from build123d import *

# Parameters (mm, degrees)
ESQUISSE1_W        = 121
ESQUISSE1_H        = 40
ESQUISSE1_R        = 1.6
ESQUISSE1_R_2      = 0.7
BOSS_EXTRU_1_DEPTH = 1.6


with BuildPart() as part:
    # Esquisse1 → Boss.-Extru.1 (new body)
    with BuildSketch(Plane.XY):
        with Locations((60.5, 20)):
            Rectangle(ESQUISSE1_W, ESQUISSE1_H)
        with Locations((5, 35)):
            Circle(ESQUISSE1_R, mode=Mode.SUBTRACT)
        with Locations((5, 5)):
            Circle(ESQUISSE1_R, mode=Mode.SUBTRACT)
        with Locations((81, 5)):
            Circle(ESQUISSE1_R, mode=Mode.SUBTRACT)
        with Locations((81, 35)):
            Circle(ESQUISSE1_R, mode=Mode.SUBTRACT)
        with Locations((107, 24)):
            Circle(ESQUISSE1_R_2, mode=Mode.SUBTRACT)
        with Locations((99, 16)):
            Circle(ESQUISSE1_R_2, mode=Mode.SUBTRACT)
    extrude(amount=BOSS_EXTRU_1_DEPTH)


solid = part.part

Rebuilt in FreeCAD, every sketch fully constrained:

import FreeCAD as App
import Part
import Sketcher

doc = App.newDocument("Part")
body = doc.addObject("PartDesign::Body", "Body")

# Sketch on XY plane
sketch1 = body.newObject("Sketcher::SketchObject", "Sketch")
sketch1.AttachmentSupport = (doc.getObject("XY_Plane"), [""])
sketch1.MapMode = "FlatFace"
sketch1.addGeometry([
    Part.LineSegment(App.Vector(0, 40, 0), App.Vector(0, 0, 0)),  # 0
    Part.LineSegment(App.Vector(0, 0, 0), App.Vector(121, 0, 0)),  # 1
    Part.LineSegment(App.Vector(121, 0, 0), App.Vector(121, 40, 0)),  # 2
    Part.LineSegment(App.Vector(121, 40, 0), App.Vector(0, 40, 0)),  # 3
    Part.Circle(App.Vector(5, 5, 0), App.Vector(0, 0, 1), 1.6),  # 4
    Part.Circle(App.Vector(81, 5, 0), App.Vector(0, 0, 1), 1.6),  # 5
    Part.Circle(App.Vector(99, 16, 0), App.Vector(0, 0, 1), 0.7),  # 6
    Part.Circle(App.Vector(5, 35, 0), App.Vector(0, 0, 1), 1.6),  # 7
    Part.Circle(App.Vector(107, 24, 0), App.Vector(0, 0, 1), 0.7),  # 8
    Part.Circle(App.Vector(81, 35, 0), App.Vector(0, 0, 1), 1.6),  # 9
], False)
sketch1.addConstraint([
    Sketcher.Constraint("Coincident", 0, 2, 1, 1),
    Sketcher.Constraint("Coincident", 1, 2, 2, 1),
    Sketcher.Constraint("Coincident", 2, 2, 3, 1),
    Sketcher.Constraint("Coincident", 3, 2, 0, 1),
    Sketcher.Constraint("Vertical", 0),
    Sketcher.Constraint("Horizontal", 1),
    Sketcher.Constraint("Vertical", 2),
    Sketcher.Constraint("Horizontal", 3),
    Sketcher.Constraint("Coincident", 0, 2, -1, 1),
    Sketcher.Constraint("Equal", 4, 5),
    Sketcher.Constraint("Equal", 5, 7),
    Sketcher.Constraint("Equal", 6, 8),
    Sketcher.Constraint("Equal", 7, 9),
    Sketcher.Constraint("Horizontal", 4, 3, 5, 3),
    Sketcher.Constraint("Horizontal", 7, 3, 9, 3),
    Sketcher.Constraint("Vertical", 4, 3, 7, 3),
    Sketcher.Constraint("Vertical", 5, 3, 9, 3),
    Sketcher.Constraint("Diameter", 4, 3.2),
    Sketcher.Constraint("Diameter", 6, 1.4),
    Sketcher.Constraint("DistanceX", 1, 1, 1, 2, 121.0),
    Sketcher.Constraint("DistanceY", 0, 2, 0, 1, 40.0),
    Sketcher.Constraint("DistanceX", -1, 1, 4, 3, 5.0),
    Sketcher.Constraint("DistanceY", -1, 1, 4, 3, 5.0),
    Sketcher.Constraint("DistanceX", -1, 1, 5, 3, 81.0),
    Sketcher.Constraint("DistanceX", -1, 1, 6, 3, 99.0),
    Sketcher.Constraint("DistanceY", -1, 1, 6, 3, 16.0),
    Sketcher.Constraint("DistanceY", -1, 1, 7, 3, 35.0),
    Sketcher.Constraint("DistanceX", -1, 1, 8, 3, 107.0),
    Sketcher.Constraint("DistanceY", -1, 1, 8, 3, 24.0),
])
pad1 = body.newObject("PartDesign::Pad", "Pad")
pad1.Profile = sketch1
pad1.Length = 1.6

doc.recompute()
